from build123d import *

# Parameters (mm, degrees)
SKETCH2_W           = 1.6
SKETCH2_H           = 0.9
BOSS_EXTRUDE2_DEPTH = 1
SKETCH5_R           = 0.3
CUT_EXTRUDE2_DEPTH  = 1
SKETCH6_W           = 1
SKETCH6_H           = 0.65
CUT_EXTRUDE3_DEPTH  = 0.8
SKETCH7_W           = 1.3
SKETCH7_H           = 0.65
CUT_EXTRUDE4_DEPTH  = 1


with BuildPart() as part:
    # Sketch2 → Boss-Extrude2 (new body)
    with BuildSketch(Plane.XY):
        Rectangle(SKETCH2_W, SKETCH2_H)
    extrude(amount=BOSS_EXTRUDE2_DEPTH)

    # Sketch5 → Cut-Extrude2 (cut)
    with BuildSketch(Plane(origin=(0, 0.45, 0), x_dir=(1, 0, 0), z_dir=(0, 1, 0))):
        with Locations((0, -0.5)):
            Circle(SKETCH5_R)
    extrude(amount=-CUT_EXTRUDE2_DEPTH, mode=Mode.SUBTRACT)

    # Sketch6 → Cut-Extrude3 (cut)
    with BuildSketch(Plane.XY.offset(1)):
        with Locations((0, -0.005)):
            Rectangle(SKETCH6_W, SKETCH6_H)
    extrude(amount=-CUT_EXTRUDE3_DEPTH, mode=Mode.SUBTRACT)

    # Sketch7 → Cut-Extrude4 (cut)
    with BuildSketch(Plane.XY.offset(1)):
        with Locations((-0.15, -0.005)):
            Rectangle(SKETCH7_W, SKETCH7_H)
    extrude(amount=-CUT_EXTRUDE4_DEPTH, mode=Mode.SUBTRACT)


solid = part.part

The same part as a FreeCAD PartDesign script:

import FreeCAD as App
import Part
import Sketcher

V = App.Vector


def add_polygon(sketch, points):
    """Adds a closed chain of lines whose ends are joined by coincident constraints."""
    first, n = sketch.GeometryCount, len(points)
    for a, b in zip(points, points[1:] + points[:1]):
        sketch.addGeometry(Part.LineSegment(App.Vector(*a, 0), App.Vector(*b, 0)), False)
    for i in range(n):
        sketch.addConstraint(Sketcher.Constraint("Coincident", first + i, 2, first + (i + 1) % n, 1))

doc = App.newDocument("Part")
params = doc.addObject("Spreadsheet::Sheet", "Params")
for row, (alias, value) in enumerate([
    ("sketch1_width", "1.6 mm"),
    ("sketch1_height", "0.9 mm"),
    ("pad1_length", "1 mm"),
    ("sketch2_diameter", "0.6 mm"),
    ("pocket1_length", "1 mm"),
    ("sketch3_width", "1 mm"),
    ("sketch3_height", "0.65 mm"),
    ("pocket2_length", "0.8 mm"),
    ("sketch4_width", "1.3 mm"),
    ("sketch4_height", "0.65 mm"),
    ("pocket3_length", "1 mm"),
], start=1):
    params.set(f"A{row}", alias)
    params.set(f"B{row}", "=" + value)
    params.setAlias(f"B{row}", alias)

body = doc.addObject("PartDesign::Body", "Body")

# Sketch on XY plane
sketch1 = doc.addObject("Sketcher::SketchObject", "Sketch")
body.addObject(sketch1)
sketch1.AttachmentSupport = (doc.XY_Plane, [""])
sketch1.MapMode = "FlatFace"
add_polygon(sketch1, [(-0.8, 0.5), (-0.8, -0.5), (0.8, -0.5), (0.8, 0.5)])  # lines 0-3
sketch1.addConstraint([
    Sketcher.Constraint("Vertical", 0),
    Sketcher.Constraint("Horizontal", 1),
    Sketcher.Constraint("Vertical", 2),
    Sketcher.Constraint("Horizontal", 3),
    Sketcher.Constraint("Symmetric", 0, 2, 2, 2, -1, 1),
    Sketcher.Constraint("DistanceX", 1, 1, 1, 2, 1.6),
    Sketcher.Constraint("DistanceY", 0, 2, 0, 1, 0.9),
])
sketch1.setExpression("Constraints[9]", "Params.sketch1_width")
sketch1.setExpression("Constraints[10]", "Params.sketch1_height")
pad1 = doc.addObject("PartDesign::Pad", "Pad")
body.addObject(pad1)
pad1.Profile = sketch1
pad1.setExpression("Length", "Params.pad1_length")

# Sketch on XZ plane
sketch2 = doc.addObject("Sketcher::SketchObject", "Sketch001")
body.addObject(sketch2)
sketch2.AttachmentSupport = (doc.XZ_Plane, [""])
sketch2.MapMode = "FlatFace"
sketch2.AttachmentOffset = App.Placement(V(0, 0, -0.45), App.Rotation())
sketch2.addGeometry(Part.Circle(V(0, 0.5, 0), V(0, 0, 1), 0.3), False)
sketch2.addConstraint([
    Sketcher.Constraint("PointOnObject", 0, 3, -2),
    Sketcher.Constraint("Diameter", 0, 0.6),
    Sketcher.Constraint("DistanceY", -1, 1, 0, 3, 0.5),
])
sketch2.setExpression("Constraints[1]", "Params.sketch2_diameter")
pocket1 = doc.addObject("PartDesign::Pocket", "Pocket")
body.addObject(pocket1)
pocket1.Profile = sketch2
pocket1.setExpression("Length", "Params.pocket1_length")
pocket1.Reversed = True

# Sketch on XY plane
sketch3 = doc.addObject("Sketcher::SketchObject", "Sketch002")
body.addObject(sketch3)
sketch3.AttachmentSupport = (doc.XY_Plane, [""])
sketch3.MapMode = "FlatFace"
sketch3.AttachmentOffset = App.Placement(V(0, 0, 1), App.Rotation())
add_polygon(sketch3, [(-0.5, 0.3), (-0.5, -0.3), (0.5, -0.3), (0.5, 0.3)])  # lines 0-3
sketch3.addConstraint([
    Sketcher.Constraint("Vertical", 0),
    Sketcher.Constraint("Horizontal", 1),
    Sketcher.Constraint("Vertical", 2),
    Sketcher.Constraint("Horizontal", 3),
    Sketcher.Constraint("DistanceX", 1, 1, 1, 2, 1.0),
    Sketcher.Constraint("DistanceY", 0, 2, 0, 1, 0.65),
    Sketcher.Constraint("DistanceX", 0, 2, -1, 1, 0.5),
    Sketcher.Constraint("DistanceY", 0, 2, -1, 1, 0.33),
])
sketch3.setExpression("Constraints[8]", "Params.sketch3_width")
sketch3.setExpression("Constraints[9]", "Params.sketch3_height")
pocket2 = doc.addObject("PartDesign::Pocket", "Pocket001")
body.addObject(pocket2)
pocket2.Profile = sketch3
pocket2.setExpression("Length", "Params.pocket2_length")

# Sketch on XY plane
sketch4 = doc.addObject("Sketcher::SketchObject", "Sketch003")
body.addObject(sketch4)
sketch4.AttachmentSupport = (doc.XY_Plane, [""])
sketch4.MapMode = "FlatFace"
sketch4.AttachmentOffset = App.Placement(V(0, 0, 1), App.Rotation())
add_polygon(sketch4, [(-0.8, 0.3), (-0.8, -0.3), (0.5, -0.3), (0.5, 0.3)])  # lines 0-3
sketch4.addConstraint([
    Sketcher.Constraint("Vertical", 0),
    Sketcher.Constraint("Horizontal", 1),
    Sketcher.Constraint("Vertical", 2),
    Sketcher.Constraint("Horizontal", 3),
    Sketcher.Constraint("DistanceX", 1, 1, 1, 2, 1.3),
    Sketcher.Constraint("DistanceY", 0, 2, 0, 1, 0.65),
    Sketcher.Constraint("DistanceX", 0, 2, -1, 1, 0.8),
    Sketcher.Constraint("DistanceY", 0, 2, -1, 1, 0.33),
])
sketch4.setExpression("Constraints[8]", "Params.sketch4_width")
sketch4.setExpression("Constraints[9]", "Params.sketch4_height")
pocket3 = doc.addObject("PartDesign::Pocket", "Pocket002")
body.addObject(pocket3)
pocket3.Profile = sketch4
pocket3.setExpression("Length", "Params.pocket3_length")

doc.recompute()
